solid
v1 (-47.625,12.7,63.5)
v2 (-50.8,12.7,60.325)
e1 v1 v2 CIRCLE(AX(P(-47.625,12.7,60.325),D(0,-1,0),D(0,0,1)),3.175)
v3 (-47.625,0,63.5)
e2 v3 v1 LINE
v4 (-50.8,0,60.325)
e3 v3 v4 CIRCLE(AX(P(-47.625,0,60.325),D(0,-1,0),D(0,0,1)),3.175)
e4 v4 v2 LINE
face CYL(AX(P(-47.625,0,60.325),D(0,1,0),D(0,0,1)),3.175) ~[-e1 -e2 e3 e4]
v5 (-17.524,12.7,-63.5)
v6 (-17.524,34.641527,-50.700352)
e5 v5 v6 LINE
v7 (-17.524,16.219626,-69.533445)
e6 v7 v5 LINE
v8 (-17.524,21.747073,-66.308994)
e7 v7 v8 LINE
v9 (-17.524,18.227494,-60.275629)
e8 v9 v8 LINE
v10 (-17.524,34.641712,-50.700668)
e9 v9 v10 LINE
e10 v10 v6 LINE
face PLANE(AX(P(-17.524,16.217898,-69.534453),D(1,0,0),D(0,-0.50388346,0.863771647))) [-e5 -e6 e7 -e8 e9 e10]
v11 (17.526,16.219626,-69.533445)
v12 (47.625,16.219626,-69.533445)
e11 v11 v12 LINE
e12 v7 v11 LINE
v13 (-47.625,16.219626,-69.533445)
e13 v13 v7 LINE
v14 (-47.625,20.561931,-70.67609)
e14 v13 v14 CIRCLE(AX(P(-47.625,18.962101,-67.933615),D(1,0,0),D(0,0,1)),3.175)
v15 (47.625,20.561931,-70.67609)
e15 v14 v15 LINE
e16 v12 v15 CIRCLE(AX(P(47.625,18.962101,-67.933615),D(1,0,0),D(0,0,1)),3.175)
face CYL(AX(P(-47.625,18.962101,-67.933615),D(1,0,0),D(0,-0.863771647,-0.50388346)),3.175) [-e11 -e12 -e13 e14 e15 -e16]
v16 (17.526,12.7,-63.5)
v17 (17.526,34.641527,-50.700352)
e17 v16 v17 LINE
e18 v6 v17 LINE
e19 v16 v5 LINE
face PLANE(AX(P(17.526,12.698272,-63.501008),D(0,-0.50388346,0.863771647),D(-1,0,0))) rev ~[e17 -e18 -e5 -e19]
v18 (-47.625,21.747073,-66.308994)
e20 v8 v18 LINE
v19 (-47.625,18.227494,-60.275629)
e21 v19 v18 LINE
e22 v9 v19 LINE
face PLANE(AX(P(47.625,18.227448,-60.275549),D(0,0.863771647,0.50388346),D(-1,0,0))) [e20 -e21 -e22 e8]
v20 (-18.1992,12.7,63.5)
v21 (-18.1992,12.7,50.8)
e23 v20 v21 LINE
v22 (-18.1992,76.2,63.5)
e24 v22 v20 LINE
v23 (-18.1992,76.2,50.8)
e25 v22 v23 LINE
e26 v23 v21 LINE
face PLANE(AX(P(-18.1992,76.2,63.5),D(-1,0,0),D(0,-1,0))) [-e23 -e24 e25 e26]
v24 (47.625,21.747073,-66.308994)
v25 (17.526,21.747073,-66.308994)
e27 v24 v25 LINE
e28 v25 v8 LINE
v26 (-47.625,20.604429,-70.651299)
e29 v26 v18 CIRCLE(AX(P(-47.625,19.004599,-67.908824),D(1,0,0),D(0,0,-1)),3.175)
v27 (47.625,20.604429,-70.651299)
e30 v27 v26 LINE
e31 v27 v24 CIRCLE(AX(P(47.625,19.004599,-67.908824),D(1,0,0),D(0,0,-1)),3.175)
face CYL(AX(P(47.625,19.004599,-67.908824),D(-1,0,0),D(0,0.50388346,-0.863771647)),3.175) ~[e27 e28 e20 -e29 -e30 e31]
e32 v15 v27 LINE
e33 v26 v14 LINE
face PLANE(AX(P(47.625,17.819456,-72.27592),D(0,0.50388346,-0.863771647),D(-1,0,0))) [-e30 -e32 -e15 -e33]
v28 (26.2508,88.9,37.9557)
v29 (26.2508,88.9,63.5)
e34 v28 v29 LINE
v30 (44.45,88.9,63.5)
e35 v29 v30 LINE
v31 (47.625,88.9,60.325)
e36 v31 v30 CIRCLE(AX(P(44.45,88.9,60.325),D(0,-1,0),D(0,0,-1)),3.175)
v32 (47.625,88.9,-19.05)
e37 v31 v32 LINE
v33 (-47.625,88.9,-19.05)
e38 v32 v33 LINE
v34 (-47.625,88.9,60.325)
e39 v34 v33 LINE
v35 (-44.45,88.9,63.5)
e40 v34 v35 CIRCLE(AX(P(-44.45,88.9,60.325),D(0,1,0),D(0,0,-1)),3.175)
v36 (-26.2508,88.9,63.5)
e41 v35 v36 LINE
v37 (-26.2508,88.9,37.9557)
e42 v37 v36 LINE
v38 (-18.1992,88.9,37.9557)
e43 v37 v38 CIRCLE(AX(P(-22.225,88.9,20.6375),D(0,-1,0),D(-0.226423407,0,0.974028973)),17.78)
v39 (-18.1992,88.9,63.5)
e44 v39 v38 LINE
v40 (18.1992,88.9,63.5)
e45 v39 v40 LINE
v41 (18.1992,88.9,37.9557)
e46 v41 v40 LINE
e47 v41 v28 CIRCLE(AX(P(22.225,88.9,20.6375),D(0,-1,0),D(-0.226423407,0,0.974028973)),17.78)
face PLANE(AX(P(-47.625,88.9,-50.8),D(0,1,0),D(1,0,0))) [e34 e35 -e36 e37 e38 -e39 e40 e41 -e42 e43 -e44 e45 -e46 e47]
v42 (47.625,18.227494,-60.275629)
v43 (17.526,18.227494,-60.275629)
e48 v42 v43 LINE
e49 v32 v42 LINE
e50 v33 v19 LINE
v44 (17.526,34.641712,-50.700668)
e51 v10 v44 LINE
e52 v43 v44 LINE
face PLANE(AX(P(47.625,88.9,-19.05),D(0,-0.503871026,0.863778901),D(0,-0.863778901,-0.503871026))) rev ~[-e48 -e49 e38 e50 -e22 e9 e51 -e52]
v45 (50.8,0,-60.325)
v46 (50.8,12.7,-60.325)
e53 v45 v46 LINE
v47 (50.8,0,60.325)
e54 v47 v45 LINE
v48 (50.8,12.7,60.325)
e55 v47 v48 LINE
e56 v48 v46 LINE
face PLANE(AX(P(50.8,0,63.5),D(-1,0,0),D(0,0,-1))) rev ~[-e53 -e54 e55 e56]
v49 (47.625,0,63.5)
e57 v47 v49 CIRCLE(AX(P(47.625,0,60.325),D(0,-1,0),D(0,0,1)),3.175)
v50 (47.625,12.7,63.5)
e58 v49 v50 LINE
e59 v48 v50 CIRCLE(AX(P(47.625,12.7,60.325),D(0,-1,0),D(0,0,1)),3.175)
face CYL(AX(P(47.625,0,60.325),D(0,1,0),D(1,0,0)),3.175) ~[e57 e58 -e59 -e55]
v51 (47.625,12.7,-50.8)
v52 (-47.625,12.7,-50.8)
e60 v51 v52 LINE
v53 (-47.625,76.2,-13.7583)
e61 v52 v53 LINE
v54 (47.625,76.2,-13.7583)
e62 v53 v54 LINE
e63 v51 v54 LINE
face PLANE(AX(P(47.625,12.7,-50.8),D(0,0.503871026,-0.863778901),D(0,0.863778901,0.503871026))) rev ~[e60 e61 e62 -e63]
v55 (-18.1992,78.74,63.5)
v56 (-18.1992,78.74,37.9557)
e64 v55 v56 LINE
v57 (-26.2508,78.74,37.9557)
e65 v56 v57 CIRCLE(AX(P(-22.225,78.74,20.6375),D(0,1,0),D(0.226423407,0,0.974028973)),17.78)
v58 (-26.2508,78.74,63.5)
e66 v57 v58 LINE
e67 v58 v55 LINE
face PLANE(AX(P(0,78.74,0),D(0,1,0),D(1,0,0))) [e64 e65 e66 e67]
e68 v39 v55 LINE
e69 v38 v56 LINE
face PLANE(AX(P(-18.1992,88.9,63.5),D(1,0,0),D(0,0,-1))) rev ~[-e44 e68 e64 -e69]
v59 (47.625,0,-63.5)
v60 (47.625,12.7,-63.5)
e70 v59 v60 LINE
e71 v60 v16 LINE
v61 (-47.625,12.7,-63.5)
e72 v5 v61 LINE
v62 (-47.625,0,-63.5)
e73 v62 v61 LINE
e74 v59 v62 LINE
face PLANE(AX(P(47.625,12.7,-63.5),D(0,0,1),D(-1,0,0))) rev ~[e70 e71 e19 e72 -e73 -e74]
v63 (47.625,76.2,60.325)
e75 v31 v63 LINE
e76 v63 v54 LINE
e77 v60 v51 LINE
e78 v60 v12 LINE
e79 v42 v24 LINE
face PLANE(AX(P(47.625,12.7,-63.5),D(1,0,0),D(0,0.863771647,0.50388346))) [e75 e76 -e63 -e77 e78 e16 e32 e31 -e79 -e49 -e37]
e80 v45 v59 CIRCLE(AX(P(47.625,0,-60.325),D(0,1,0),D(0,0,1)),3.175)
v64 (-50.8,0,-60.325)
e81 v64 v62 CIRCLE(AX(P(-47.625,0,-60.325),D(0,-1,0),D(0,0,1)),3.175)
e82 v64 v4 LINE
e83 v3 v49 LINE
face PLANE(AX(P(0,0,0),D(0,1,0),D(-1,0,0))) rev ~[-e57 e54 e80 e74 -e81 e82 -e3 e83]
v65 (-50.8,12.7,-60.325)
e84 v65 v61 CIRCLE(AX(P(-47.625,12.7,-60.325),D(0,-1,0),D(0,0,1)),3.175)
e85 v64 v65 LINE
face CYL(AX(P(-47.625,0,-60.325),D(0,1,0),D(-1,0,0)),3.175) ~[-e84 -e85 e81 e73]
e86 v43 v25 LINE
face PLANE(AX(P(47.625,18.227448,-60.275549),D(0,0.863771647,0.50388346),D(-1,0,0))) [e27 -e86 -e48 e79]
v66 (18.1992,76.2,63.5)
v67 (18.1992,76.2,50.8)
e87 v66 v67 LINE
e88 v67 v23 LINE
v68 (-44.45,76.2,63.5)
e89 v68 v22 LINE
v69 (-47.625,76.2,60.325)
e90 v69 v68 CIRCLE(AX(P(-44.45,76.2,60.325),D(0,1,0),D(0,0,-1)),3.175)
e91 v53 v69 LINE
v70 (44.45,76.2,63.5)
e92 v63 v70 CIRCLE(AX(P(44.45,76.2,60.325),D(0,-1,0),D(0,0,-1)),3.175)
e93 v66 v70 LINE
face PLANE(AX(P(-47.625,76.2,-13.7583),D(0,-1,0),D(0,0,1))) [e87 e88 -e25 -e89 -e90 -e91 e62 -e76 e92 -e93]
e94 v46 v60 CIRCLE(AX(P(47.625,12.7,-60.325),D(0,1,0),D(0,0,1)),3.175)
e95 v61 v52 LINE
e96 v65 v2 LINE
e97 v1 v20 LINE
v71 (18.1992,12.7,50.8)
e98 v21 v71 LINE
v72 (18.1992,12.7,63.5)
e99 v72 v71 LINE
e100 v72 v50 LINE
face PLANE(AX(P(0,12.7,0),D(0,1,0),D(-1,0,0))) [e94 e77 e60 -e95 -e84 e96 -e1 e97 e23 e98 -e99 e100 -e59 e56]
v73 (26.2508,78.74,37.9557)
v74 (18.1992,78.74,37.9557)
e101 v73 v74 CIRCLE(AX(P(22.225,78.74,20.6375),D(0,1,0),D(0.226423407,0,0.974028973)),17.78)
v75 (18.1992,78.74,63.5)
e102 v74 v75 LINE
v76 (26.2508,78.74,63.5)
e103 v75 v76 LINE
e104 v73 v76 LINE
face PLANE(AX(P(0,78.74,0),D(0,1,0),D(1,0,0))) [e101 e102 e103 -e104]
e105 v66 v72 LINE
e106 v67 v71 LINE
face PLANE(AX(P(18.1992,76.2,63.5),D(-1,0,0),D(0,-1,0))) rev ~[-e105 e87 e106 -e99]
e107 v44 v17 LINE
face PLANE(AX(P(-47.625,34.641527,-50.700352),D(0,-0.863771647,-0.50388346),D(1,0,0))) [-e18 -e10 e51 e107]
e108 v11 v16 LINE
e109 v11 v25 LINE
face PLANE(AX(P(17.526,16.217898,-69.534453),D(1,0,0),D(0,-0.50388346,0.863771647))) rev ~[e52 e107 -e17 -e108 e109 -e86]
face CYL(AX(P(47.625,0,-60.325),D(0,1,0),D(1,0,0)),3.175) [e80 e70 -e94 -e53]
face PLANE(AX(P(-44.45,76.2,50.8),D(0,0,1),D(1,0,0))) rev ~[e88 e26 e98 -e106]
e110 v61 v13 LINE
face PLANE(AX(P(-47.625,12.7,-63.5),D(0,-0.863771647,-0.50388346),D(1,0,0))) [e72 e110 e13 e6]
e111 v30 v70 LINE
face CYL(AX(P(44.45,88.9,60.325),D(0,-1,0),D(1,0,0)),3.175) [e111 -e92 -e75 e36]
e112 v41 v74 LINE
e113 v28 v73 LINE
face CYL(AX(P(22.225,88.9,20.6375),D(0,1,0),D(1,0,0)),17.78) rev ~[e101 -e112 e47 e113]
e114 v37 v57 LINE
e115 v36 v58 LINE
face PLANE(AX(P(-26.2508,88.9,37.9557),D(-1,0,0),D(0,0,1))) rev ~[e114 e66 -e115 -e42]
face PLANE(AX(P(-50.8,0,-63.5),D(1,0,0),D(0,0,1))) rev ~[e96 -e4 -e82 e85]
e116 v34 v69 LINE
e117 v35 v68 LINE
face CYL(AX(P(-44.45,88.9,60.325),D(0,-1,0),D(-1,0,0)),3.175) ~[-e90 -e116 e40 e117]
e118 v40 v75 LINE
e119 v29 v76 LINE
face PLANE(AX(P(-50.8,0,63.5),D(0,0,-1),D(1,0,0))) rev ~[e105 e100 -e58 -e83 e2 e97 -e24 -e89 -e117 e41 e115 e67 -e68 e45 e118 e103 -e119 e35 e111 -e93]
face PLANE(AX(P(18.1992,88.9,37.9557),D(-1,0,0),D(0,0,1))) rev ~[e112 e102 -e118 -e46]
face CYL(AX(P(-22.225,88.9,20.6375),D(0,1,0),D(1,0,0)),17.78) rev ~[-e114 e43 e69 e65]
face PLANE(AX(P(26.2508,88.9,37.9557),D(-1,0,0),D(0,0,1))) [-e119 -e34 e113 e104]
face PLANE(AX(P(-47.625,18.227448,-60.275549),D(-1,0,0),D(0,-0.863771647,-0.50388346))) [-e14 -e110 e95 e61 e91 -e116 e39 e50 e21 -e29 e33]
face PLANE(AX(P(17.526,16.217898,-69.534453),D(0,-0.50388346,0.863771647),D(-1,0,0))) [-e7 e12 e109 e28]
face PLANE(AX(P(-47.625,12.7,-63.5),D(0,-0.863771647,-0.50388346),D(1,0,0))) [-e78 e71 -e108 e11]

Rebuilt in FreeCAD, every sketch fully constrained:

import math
import FreeCAD as App
import Part
import Sketcher

V = App.Vector
Q = App.Units.Quantity


def edges_at(feature, points):
    """Names of the edges that pass closest to the given points."""
    edges = feature.Shape.Edges
    near = lambda p: min(range(len(edges)), key=lambda i: edges[i].distToShape(Part.Vertex(*p))[0])
    return sorted({f"Edge{near(p) + 1}" for p in points})


def add_polygon(sketch, points):
    """Adds a closed chain of lines whose ends are joined by coincident constraints."""
    first, n = sketch.GeometryCount, len(points)
    for a, b in zip(points, points[1:] + points[:1]):
        sketch.addGeometry(Part.LineSegment(App.Vector(*a, 0), App.Vector(*b, 0)), False)
    for i in range(n):
        sketch.addConstraint(Sketcher.Constraint("Coincident", first + i, 2, first + (i + 1) % n, 1))

doc = App.newDocument("Part")
params = doc.addObject("Spreadsheet::Sheet", "Params")
for row, (alias, value) in enumerate([
    ("sketch1_width", "4 in"),
    ("sketch1_height", "5 in"),
    ("pad1_length", "0.5 in"),
    ("fillet_radius", "0.125 in"),
    ("sketch2_height", "0.5 in"),
    ("sketch2_width", "3.75 in"),
    ("pad2_length", "3 in"),
    ("sketch3_height", "3 in"),
    ("sketch3_width", "3.75 in"),
    ("pad3_length", "3 in"),
    ("sketch4_width", "3 in"),
    ("sketch4_height", "1.75 in"),
    ("pocket1_length", "3.75 in"),
    ("sketch5_width", "3 in"),
    ("sketch5_height", "1.25 in"),
    ("pocket2_length", "3.75 in"),
    ("sketch6_width", "0.5 in"),
    ("sketch6_height", "2.75 in"),
    ("pad4_length", "3.75 in"),
    ("fillet2_radius", "0.125 in"),
    ("sketch7_width", "3.75 in"),
    ("pad5_length", "0.4 in"),
    ("fillet3_radius", "0.125 in"),
    ("sketch8_radius", "0.7 in"),
    ("sketch8_width", "0.317 in"),
    ("pocket3_length", "0.4 in"),
    ("sketch9_height", "2.5 in"),
    ("sketch9_width", "1.433 in"),
    ("pad6_length", "0.5 in"),
    ("sketch10_height", "0.275 in"),
    ("pocket4_length", "1 in"),
], start=1):
    params.set(f"A{row}", alias)
    params.set(f"B{row}", "=" + value)
    params.setAlias(f"B{row}", alias)

body = doc.addObject("PartDesign::Body", "Body")

# Sketch on XZ plane
sketch1 = body.newObject("Sketcher::SketchObject", "Sketch")
sketch1.AttachmentSupport = (doc.getObject("XZ_Plane"), [""])
sketch1.MapMode = "FlatFace"
add_polygon(sketch1, [(51, 64), (51, -64), (-51, -64), (-51, 64)])  # lines 0-3
sketch1.addConstraint([
    Sketcher.Constraint("Vertical", 0),
    Sketcher.Constraint("Horizontal", 1),
    Sketcher.Constraint("Vertical", 2),
    Sketcher.Constraint("Horizontal", 3),
    Sketcher.Constraint("Symmetric", 0, 2, 2, 2, -1, 1),
    Sketcher.Constraint("DistanceX", 1, 2, 1, 1, Q("4 in")),
    Sketcher.Constraint("DistanceY", 0, 2, 0, 1, Q("5 in")),
])
sketch1.setExpression("Constraints[9]", "Params.sketch1_width")
sketch1.setExpression("Constraints[10]", "Params.sketch1_height")
pad1 = body.newObject("PartDesign::Pad", "Pad")
pad1.Profile = sketch1
pad1.setExpression("Length", "Params.pad1_length")
pad1.Reversed = True
doc.recompute()

fillet = body.newObject("PartDesign::Fillet", "Fillet")
fillet.Base = (pad1, edges_at(pad1, [
    (-50.8, 6.35, 63.5),
    (50.8, 6.35, 63.5),
    (50.8, 6.35, -63.5),
    (-50.8, 6.35, -63.5),
]))
fillet.setExpression("Radius", "Params.fillet_radius")

# Sketch on XZ plane
sketch2 = body.newObject("Sketcher::SketchObject", "Sketch001")
sketch2.AttachmentSupport = (doc.getObject("XZ_Plane"), [""])
sketch2.MapMode = "FlatFace"
sketch2.AttachmentOffset = App.Placement(V(0, 0, -0.5 * 25.4), App.Rotation())
add_polygon(sketch2, [(48, -51), (48, -64), (-48, -64), (-48, -51)])  # lines 0-3
sketch2.addConstraint([
    Sketcher.Constraint("Vertical", 0),
    Sketcher.Constraint("Horizontal", 1),
    Sketcher.Constraint("Vertical", 2),
    Sketcher.Constraint("Horizontal", 3),
    Sketcher.Constraint("DistanceY", 0, 2, 0, 1, Q("0.5 in")),
    Sketcher.Constraint("DistanceY", 2, 2, -1, 1, Q("2 in")),
    Sketcher.Constraint("DistanceX", 1, 2, 1, 1, Q("3.75 in")),
    Sketcher.Constraint("DistanceX", -1, 1, 0, 2, Q("1.875 in")),
])
sketch2.setExpression("Constraints[8]", "Params.sketch2_height")
sketch2.setExpression("Constraints[10]", "Params.sketch2_width")
pad2 = body.newObject("PartDesign::Pad", "Pad001")
pad2.Profile = sketch2
pad2.setExpression("Length", "Params.pad2_length")
pad2.Reversed = True

# Sketch on XY plane
sketch3 = body.newObject("Sketcher::SketchObject", "Sketch002")
sketch3.AttachmentSupport = (doc.getObject("XY_Plane"), [""])
sketch3.MapMode = "FlatFace"
sketch3.AttachmentOffset = App.Placement(V(0, 0, -2 * 25.4), App.Rotation())
add_polygon(sketch3, [(-48, 89), (-48, 13), (48, 13), (48, 89)])  # lines 0-3
sketch3.addConstraint([
    Sketcher.Constraint("Vertical", 0),
    Sketcher.Constraint("Horizontal", 1),
    Sketcher.Constraint("Vertical", 2),
    Sketcher.Constraint("Horizontal", 3),
    Sketcher.Constraint("DistanceY", 0, 2, 0, 1, Q("3 in")),
    Sketcher.Constraint("DistanceX", 1, 1, 1, 2, Q("3.75 in")),
    Sketcher.Constraint("DistanceY", -1, 1, 0, 2, Q("0.5 in")),
    Sketcher.Constraint("DistanceX", 0, 2, -1, 1, Q("1.875 in")),
])
sketch3.setExpression("Constraints[8]", "Params.sketch3_height")
sketch3.setExpression("Constraints[9]", "Params.sketch3_width")
pad3 = body.newObject("PartDesign::Pad", "Pad002")
pad3.Profile = sketch3
pad3.setExpression("Length", "Params.pad3_length")

# Sketch on YZ plane
sketch4 = body.newObject("Sketcher::SketchObject", "Sketch003")
sketch4.AttachmentSupport = (doc.getObject("YZ_Plane"), [""])
sketch4.MapMode = "FlatFace"
sketch4.AttachmentOffset = App.Placement(V(0, 0, 1.875 * 25.4), App.Rotation())
add_polygon(sketch4, [(13, -64), (89, -64), (89, -19)])  # lines 0-2
sketch4.addConstraint([
    Sketcher.Constraint("Horizontal", 0),
    Sketcher.Constraint("Vertical", 1),
    Sketcher.Constraint("DistanceX", 0, 1, 0, 2, Q("3 in")),
    Sketcher.Constraint("DistanceY", 1, 1, 1, 2, Q("1.75 in")),
    Sketcher.Constraint("DistanceX", -1, 1, 0, 2, Q("3.5 in")),
    Sketcher.Constraint("DistanceY", 0, 2, -1, 1, Q("2.5 in")),
])
sketch4.setExpression("Constraints[5]", "Params.sketch4_width")
sketch4.setExpression("Constraints[6]", "Params.sketch4_height")
pocket1 = body.newObject("PartDesign::Pocket", "Pocket")
pocket1.Profile = sketch4
pocket1.setExpression("Length", "Params.pocket1_length")

# Sketch on YZ plane
sketch5 = body.newObject("Sketcher::SketchObject", "Sketch004")
sketch5.AttachmentSupport = (doc.getObject("YZ_Plane"), [""])
sketch5.MapMode = "FlatFace"
sketch5.AttachmentOffset = App.Placement(V(0, 0, 1.875 * 25.4), App.Rotation())
add_polygon(sketch5, [(13, -51), (89, -6), (89, 25), (13, 25)])  # lines 0-3
sketch5.addConstraint([
    Sketcher.Constraint("Vertical", 1),
    Sketcher.Constraint("Horizontal", 2),
    Sketcher.Constraint("Vertical", 3),
    Sketcher.Constraint("Equal", 2, 3),
    Sketcher.Constraint("DistanceX", -1, 1, 2, 2, Q("0.5 in")),
    Sketcher.Constraint("DistanceX", 2, 2, 2, 1, Q("3 in")),
    Sketcher.Constraint("DistanceY", -1, 1, 1, 2, Q("1 in")),
    Sketcher.Constraint("DistanceY", 1, 1, 1, 2, Q("1.25 in")),
])
sketch5.setExpression("Constraints[9]", "Params.sketch5_width")
sketch5.setExpression("Constraints[11]", "Params.sketch5_height")
pocket2 = body.newObject("PartDesign::Pocket", "Pocket001")
pocket2.Profile = sketch5
pocket2.setExpression("Length", "Params.pocket2_length")

# Sketch on YZ plane
sketch6 = body.newObject("Sketcher::SketchObject", "Sketch005")
sketch6.AttachmentSupport = (doc.getObject("YZ_Plane"), [""])
sketch6.MapMode = "FlatFace"
sketch6.AttachmentOffset = App.Placement(V(0, 0, -1.875 * 25.4), App.Rotation())
add_polygon(sketch6, [(89, 64), (89, -6), (76, -14), (76, 64)])  # lines 0-3
sketch6.addConstraint([
    Sketcher.Constraint("Vertical", 0),
    Sketcher.Constraint("Vertical", 2),
    Sketcher.Constraint("Horizontal", 3),
    Sketcher.Constraint("DistanceX", 3, 1, 3, 2, Q("0.5 in")),
    Sketcher.Constraint("DistanceX", -1, 1, 1, 2, Q("3 in")),
    Sketcher.Constraint("DistanceY", 0, 2, 0, 1, Q("2.75 in")),
    Sketcher.Constraint("DistanceY", -1, 1, 2, 2, Q("2.5 in")),
    Sketcher.Constraint("DistanceY", 2, 1, 2, 2, 77.2583),
])
sketch6.setExpression("Constraints[7]", "Params.sketch6_width")
sketch6.setExpression("Constraints[9]", "Params.sketch6_height")
pad4 = body.newObject("PartDesign::Pad", "Pad003")
pad4.Profile = sketch6
pad4.setExpression("Length", "Params.pad4_length")
doc.recompute()

fillet2 = body.newObject("PartDesign::Fillet", "Fillet001")
fillet2.Base = (pad4, edges_at(pad4, [(47.625, 82.55, 63.5), (-47.625, 82.55, 63.5)]))
fillet2.setExpression("Radius", "Params.fillet2_radius")

# Sketch on an angled plane
sketch7 = body.newObject("Sketcher::SketchObject", "Sketch006")
sketch7.Placement = App.Placement(V(47.625, 12.7, -63.5), App.Rotation(V(-1, 0, 0), V(0, 0.863771647, 0.50388346), V(0, 0.50388346, -0.863771647), "ZXY"))
add_polygon(sketch7, [(0, 0), (95, 0), (95, 6), (0, 6)])  # lines 0-3
sketch7.addConstraint([
    Sketcher.Constraint("Horizontal", 0),
    Sketcher.Constraint("Vertical", 1),
    Sketcher.Constraint("Horizontal", 2),
    Sketcher.Constraint("Vertical", 3),
    Sketcher.Constraint("Coincident", 3, 2, -1, 1),
    Sketcher.Constraint("DistanceX", 0, 1, 0, 2, Q("3.75 in")),
    Sketcher.Constraint("DistanceY", 1, 1, 1, 2, 6.3992),
])
sketch7.setExpression("Constraints[9]", "Params.sketch7_width")
pad5 = body.newObject("PartDesign::Pad", "Pad004")
pad5.Profile = sketch7
pad5.setExpression("Length", "Params.pad5_length")
doc.recompute()

fillet3 = body.newObject("PartDesign::Fillet", "Fillet002")
fillet3.Base = (pad5, edges_at(pad5, [(0, 23.347, -69.052), (0, 17.819, -72.276)]))
fillet3.setExpression("Radius", "Params.fillet3_radius")

# Sketch on XZ plane
sketch8 = body.newObject("Sketcher::SketchObject", "Sketch007")
sketch8.AttachmentSupport = (doc.getObject("XZ_Plane"), [""])
sketch8.MapMode = "FlatFace"
sketch8.AttachmentOffset = App.Placement(V(0, 0, -3.5 * 25.4), App.Rotation())
sketch8.addGeometry([
    Part.LineSegment(V(-26, 38, 0), V(-26, 64, 0)),  # 0
    Part.LineSegment(V(-26, 64, 0), V(-18, 64, 0)),  # 1
    Part.LineSegment(V(-18, 64, 0), V(-18, 38, 0)),  # 2
    Part.ArcOfCircle(Part.Circle(V(-22, 21, 0), V(0, 0, 1), 18), math.radians(103), math.radians(437)),  # 3
    Part.LineSegment(V(18, 38, 0), V(18, 64, 0)),  # 4
    Part.LineSegment(V(18, 64, 0), V(26, 64, 0)),  # 5
    Part.LineSegment(V(26, 64, 0), V(26, 38, 0)),  # 6
    Part.ArcOfCircle(Part.Circle(V(22, 21, 0), V(0, 0, 1), 18), math.radians(103), math.radians(437)),  # 7
], False)
sketch8.addConstraint([
    Sketcher.Constraint("Coincident", 0, 2, 1, 1),
    Sketcher.Constraint("Coincident", 1, 2, 2, 1),
    Sketcher.Constraint("Coincident", 2, 2, 3, 2),
    Sketcher.Constraint("Coincident", 3, 1, 0, 1),
    Sketcher.Constraint("Coincident", 4, 2, 5, 1),
    Sketcher.Constraint("Coincident", 5, 2, 6, 1),
    Sketcher.Constraint("Coincident", 6, 2, 7, 2),
    Sketcher.Constraint("Coincident", 7, 1, 4, 1),
    Sketcher.Constraint("Vertical", 0),
    Sketcher.Constraint("Horizontal", 1),
    Sketcher.Constraint("Vertical", 2),
    Sketcher.Constraint("Vertical", 4),
    Sketcher.Constraint("Horizontal", 5),
    Sketcher.Constraint("Vertical", 6),
    Sketcher.Constraint("Equal", 3, 7),
    Sketcher.Constraint("Symmetric", 3, 3, 7, 3, -2),
    Sketcher.Constraint("Symmetric", 1, 2, 4, 2, -2),
    Sketcher.Constraint("Horizontal", 2, 2, 3, 1),
    Sketcher.Constraint("Horizontal", 3, 1, 6, 2),
    Sketcher.Constraint("Radius", 3, Q("0.7 in")),
    Sketcher.Constraint("DistanceX", 1, 1, 1, 2, Q("0.317 in")),
    Sketcher.Constraint("DistanceY", -1, 1, 0, 2, Q("2.5 in")),
    Sketcher.Constraint("DistanceX", 3, 3, 7, 3, Q("1.75 in")),
    Sketcher.Constraint("DistanceY", -1, 1, 3, 3, Q("0.8125 in")),
])
sketch8.setExpression("Constraints[19]", "Params.sketch8_radius")
sketch8.setExpression("Constraints[20]", "Params.sketch8_width")
pocket3 = body.newObject("PartDesign::Pocket", "Pocket002")
pocket3.Profile = sketch8
pocket3.setExpression("Length", "Params.pocket3_length")
pocket3.Reversed = True

# Sketch on XY plane
sketch9 = body.newObject("Sketcher::SketchObject", "Sketch008")
sketch9.AttachmentSupport = (doc.getObject("XY_Plane"), [""])
sketch9.MapMode = "FlatFace"
sketch9.AttachmentOffset = App.Placement(V(0, 0, 2.5 * 25.4), App.Rotation())
add_polygon(sketch9, [(18, 13), (18, 76), (-18, 76), (-18, 13)])  # lines 0-3
sketch9.addConstraint([
    Sketcher.Constraint("Vertical", 0),
    Sketcher.Constraint("Horizontal", 1),
    Sketcher.Constraint("Vertical", 2),
    Sketcher.Constraint("Horizontal", 3),
    Sketcher.Constraint("DistanceY", 0, 1, 0, 2, Q("2.5 in")),
    Sketcher.Constraint("DistanceY", -1, 1, 0, 2, Q("3 in")),
    Sketcher.Constraint("DistanceX", 1, 2, 1, 1, Q("1.433 in")),
    Sketcher.Constraint("DistanceX", -1, 1, 0, 2, Q("0.7165 in")),
])
sketch9.setExpression("Constraints[8]", "Params.sketch9_height")
sketch9.setExpression("Constraints[10]", "Params.sketch9_width")
pad6 = body.newObject("PartDesign::Pad", "Pad005")
pad6.Profile = sketch9
pad6.setExpression("Length", "Params.pad6_length")
pad6.Reversed = True

# Sketch on an angled plane
sketch10 = body.newObject("Sketcher::SketchObject", "Sketch009")
sketch10.Placement = App.Placement(V(-47.625, 12.7, -63.5), App.Rotation(V(1, 0, 0), V(0, -0.50388346, 0.863771647), V(0, -0.863771647, -0.50388346), "ZXY"))
add_polygon(sketch10, [(65, -7), (65, 0), (30, 0), (30, -7)])  # lines 0-3
sketch10.addConstraint([
    Sketcher.Constraint("Vertical", 0),
    Sketcher.Constraint("Horizontal", 1),
    Sketcher.Constraint("Vertical", 2),
    Sketcher.Constraint("Horizontal", 3),
    Sketcher.Constraint("PointOnObject", 0, 2, -1),
    Sketcher.Constraint("DistanceY", 0, 1, 0, 2, Q("0.275 in")),
    Sketcher.Constraint("DistanceX", -1, 1, 0, 2, Q("2.565 in")),
    Sketcher.Constraint("DistanceX", 1, 2, 1, 1, 35.05),
])
sketch10.setExpression("Constraints[9]", "Params.sketch10_height")
pocket4 = body.newObject("PartDesign::Pocket", "Pocket003")
pocket4.Profile = sketch10
pocket4.setExpression("Length", "Params.pocket4_length")

doc.recompute()
